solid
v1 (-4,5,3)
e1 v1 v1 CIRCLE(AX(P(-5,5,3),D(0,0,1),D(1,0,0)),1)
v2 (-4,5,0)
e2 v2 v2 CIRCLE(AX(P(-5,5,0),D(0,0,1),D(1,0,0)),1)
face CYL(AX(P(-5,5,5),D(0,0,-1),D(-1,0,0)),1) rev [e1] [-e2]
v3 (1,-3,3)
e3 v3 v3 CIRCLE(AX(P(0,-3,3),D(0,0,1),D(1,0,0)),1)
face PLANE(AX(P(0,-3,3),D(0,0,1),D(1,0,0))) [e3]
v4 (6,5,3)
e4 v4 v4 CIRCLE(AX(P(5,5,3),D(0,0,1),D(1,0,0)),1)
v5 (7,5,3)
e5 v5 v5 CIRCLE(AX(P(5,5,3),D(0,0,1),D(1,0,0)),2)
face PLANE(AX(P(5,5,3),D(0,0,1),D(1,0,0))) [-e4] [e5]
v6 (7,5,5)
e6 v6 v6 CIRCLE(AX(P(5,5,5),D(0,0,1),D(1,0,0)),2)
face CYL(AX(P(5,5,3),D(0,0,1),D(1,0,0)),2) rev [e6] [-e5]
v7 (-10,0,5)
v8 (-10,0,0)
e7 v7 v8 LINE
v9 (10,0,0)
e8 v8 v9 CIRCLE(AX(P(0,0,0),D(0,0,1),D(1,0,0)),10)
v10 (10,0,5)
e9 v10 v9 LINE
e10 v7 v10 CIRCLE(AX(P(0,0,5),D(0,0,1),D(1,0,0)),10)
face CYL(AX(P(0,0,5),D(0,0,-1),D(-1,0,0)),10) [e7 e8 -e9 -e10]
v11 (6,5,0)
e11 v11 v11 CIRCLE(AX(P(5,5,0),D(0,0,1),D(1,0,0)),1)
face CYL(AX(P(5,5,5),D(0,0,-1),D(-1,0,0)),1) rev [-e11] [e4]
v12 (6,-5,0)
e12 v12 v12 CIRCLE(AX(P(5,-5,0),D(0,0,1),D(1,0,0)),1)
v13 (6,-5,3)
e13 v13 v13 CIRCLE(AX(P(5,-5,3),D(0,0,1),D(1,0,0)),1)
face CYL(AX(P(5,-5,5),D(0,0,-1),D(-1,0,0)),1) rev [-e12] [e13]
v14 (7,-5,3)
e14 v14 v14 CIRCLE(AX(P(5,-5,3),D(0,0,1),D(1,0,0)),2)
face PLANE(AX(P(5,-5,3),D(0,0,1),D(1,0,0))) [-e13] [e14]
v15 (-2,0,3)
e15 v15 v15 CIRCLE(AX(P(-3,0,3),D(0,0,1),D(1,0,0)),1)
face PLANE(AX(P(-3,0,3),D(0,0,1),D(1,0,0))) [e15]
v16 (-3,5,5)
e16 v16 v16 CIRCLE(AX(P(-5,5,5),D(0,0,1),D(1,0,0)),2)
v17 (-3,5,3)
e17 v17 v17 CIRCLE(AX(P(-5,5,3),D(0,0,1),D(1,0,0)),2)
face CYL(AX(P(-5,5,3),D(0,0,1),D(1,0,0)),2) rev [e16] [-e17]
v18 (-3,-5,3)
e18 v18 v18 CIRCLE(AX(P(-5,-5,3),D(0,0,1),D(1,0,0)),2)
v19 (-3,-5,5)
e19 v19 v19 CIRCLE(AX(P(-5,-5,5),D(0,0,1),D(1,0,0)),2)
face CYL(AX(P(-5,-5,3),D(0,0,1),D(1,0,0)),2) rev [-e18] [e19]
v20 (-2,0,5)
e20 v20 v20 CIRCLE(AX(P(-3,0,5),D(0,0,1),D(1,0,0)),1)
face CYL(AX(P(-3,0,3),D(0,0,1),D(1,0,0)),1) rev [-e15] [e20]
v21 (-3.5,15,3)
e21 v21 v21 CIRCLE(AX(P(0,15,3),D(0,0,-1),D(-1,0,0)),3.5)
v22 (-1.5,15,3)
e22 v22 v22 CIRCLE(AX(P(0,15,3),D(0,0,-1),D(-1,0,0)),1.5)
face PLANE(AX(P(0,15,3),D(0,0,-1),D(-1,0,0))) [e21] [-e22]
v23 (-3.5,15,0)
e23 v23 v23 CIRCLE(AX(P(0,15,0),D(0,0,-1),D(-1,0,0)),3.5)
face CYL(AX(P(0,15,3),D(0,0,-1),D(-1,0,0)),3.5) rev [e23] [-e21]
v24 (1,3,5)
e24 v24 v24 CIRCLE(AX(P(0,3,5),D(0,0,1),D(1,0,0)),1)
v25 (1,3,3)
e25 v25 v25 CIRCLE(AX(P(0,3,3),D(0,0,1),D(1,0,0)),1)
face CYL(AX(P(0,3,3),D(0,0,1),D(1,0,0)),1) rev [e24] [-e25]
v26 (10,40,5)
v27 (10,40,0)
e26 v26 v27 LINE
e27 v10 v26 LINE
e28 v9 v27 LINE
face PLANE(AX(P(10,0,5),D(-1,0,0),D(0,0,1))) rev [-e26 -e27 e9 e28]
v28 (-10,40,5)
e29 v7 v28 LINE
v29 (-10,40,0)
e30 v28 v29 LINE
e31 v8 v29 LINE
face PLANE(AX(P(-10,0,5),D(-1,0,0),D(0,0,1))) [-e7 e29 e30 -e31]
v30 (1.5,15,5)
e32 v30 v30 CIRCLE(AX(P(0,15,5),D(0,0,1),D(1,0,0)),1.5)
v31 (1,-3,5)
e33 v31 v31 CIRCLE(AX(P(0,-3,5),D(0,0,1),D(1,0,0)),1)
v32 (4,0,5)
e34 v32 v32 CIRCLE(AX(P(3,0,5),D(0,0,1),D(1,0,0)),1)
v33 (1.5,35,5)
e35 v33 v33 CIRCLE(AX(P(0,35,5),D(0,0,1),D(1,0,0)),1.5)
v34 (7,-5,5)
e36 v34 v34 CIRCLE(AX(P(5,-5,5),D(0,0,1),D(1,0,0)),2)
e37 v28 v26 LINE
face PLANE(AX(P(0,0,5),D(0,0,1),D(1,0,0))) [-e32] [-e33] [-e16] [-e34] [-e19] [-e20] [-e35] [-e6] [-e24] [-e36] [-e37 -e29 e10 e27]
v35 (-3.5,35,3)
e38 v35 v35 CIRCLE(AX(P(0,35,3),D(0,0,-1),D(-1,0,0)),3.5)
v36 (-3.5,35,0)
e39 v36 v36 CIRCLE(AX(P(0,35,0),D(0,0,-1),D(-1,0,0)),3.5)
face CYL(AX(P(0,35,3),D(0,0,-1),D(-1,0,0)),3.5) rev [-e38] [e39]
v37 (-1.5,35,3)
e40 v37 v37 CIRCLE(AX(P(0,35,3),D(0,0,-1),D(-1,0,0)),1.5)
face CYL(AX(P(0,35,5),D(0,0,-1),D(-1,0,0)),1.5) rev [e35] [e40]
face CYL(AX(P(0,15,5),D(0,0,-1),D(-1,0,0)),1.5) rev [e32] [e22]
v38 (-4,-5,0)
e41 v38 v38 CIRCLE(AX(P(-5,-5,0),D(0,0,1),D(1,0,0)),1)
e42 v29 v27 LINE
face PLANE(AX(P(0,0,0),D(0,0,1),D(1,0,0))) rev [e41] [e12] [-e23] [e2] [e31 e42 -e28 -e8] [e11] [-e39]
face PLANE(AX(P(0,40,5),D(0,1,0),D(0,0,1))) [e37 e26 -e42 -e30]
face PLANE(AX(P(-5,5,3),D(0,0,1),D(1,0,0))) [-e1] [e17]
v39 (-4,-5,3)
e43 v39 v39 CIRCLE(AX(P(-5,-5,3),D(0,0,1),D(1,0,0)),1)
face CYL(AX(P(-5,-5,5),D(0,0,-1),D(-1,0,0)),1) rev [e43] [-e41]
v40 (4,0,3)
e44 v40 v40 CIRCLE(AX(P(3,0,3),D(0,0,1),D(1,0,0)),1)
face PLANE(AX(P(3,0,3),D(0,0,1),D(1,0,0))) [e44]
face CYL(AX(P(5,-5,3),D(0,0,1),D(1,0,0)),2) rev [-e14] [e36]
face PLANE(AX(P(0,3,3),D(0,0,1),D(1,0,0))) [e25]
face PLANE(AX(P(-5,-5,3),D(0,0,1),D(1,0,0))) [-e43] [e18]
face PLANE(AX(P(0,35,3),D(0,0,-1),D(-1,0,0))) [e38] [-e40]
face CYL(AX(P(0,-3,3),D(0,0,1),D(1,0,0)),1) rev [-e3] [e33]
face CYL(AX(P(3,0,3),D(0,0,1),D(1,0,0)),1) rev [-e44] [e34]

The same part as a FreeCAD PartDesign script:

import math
import FreeCAD as App
import Part
import Sketcher
from FreeCAD import Vector

doc = App.newDocument("Part")
body = doc.addObject("PartDesign::Body", "Body")

# Sketch on XY plane
sketch1 = body.newObject("Sketcher::SketchObject", "Sketch")
sketch1.AttachmentSupport = (doc.getObject("XY_Plane"), [""])
sketch1.MapMode = "FlatFace"
sketch1.addGeometry([
    Part.ArcOfCircle(Part.Circle(Vector(0, 0, 0), Vector(0, 0, 1), 10), math.radians(180), math.radians(360)),  # 0
    Part.LineSegment(Vector(10, 0, 0), Vector(10, 40, 0)),  # 1
    Part.LineSegment(Vector(10, 40, 0), Vector(-10, 40, 0)),  # 2
    Part.LineSegment(Vector(-10, 40, 0), Vector(-10, 0, 0)),  # 3
    Part.Circle(Vector(-5, -5, 0), Vector(0, 0, 1), 1),  # 4
    Part.Circle(Vector(5, -5, 0), Vector(0, 0, 1), 1),  # 5
    Part.Circle(Vector(-5, 5, 0), Vector(0, 0, 1), 1),  # 6
    Part.Circle(Vector(5, 5, 0), Vector(0, 0, 1), 1),  # 7
    Part.Circle(Vector(0, 35, 0), Vector(0, 0, 1), 1.5),  # 8
    Part.Circle(Vector(0, 15, 0), Vector(0, 0, 1), 1.5),  # 9
], False)
sketch1.addConstraint([
    Sketcher.Constraint("Tangent", 0, 2, 1, 1),
    Sketcher.Constraint("Coincident", 1, 2, 2, 1),
    Sketcher.Constraint("Coincident", 2, 2, 3, 1),
    Sketcher.Constraint("Tangent", 3, 2, 0, 1),
    Sketcher.Constraint("Vertical", 1),
    Sketcher.Constraint("Horizontal", 2),
    Sketcher.Constraint("Vertical", 3),
    Sketcher.Constraint("Coincident", 0, 3, -1, 1),
    Sketcher.Constraint("Equal", 4, 5),
    Sketcher.Constraint("Equal", 5, 6),
    Sketcher.Constraint("Equal", 6, 7),
    Sketcher.Constraint("Equal", 8, 9),
    Sketcher.Constraint("Symmetric", 5, 3, 6, 3, -1, 1),
    Sketcher.Constraint("Symmetric", 4, 3, 7, 3, -1, 1),
    Sketcher.Constraint("Symmetric", 4, 3, 5, 3, -2),
    Sketcher.Constraint("PointOnObject", 8, 3, -2),
    Sketcher.Constraint("PointOnObject", 9, 3, -2),
    Sketcher.Constraint("Diameter", 4, 2.0),
    Sketcher.Constraint("Diameter", 8, 3.0),
    Sketcher.Constraint("Radius", 0, 10.0),
    Sketcher.Constraint("DistanceY", 1, 1, 1, 2, 40.0),
    Sketcher.Constraint("DistanceX", 4, 3, -1, 1, 5.0),
    Sketcher.Constraint("DistanceY", 4, 3, -1, 1, 5.0),
    Sketcher.Constraint("DistanceY", -1, 1, 8, 3, 35.0),
    Sketcher.Constraint("DistanceY", -1, 1, 9, 3, 15.0),
])
pad1 = body.newObject("PartDesign::Pad", "Pad")
pad1.Profile = sketch1
pad1.Length = 5

# Sketch on XY plane
sketch2 = body.newObject("Sketcher::SketchObject", "Sketch001")
sketch2.AttachmentSupport = (doc.getObject("XY_Plane"), [""])
sketch2.MapMode = "FlatFace"
sketch2.AttachmentOffset = App.Placement(Vector(0, 0, 5), App.Rotation())
sketch2.addGeometry([
    Part.Circle(Vector(-5, 5, 0), Vector(0, 0, 1), 2),  # 0
    Part.Circle(Vector(5, 5, 0), Vector(0, 0, 1), 2),  # 1
    Part.Circle(Vector(5, -5, 0), Vector(0, 0, 1), 2),  # 2
    Part.Circle(Vector(-5, -5, 0), Vector(0, 0, 1), 2),  # 3
    Part.Circle(Vector(0, 3, 0), Vector(0, 0, 1), 1),  # 4
    Part.Circle(Vector(-3, 0, 0), Vector(0, 0, 1), 1),  # 5
    Part.Circle(Vector(3, 0, 0), Vector(0, 0, 1), 1),  # 6
    Part.Circle(Vector(0, -3, 0), Vector(0, 0, 1), 1),  # 7
], False)
sketch2.addConstraint([
    Sketcher.Constraint("Equal", 0, 1),
    Sketcher.Constraint("Equal", 1, 2),
    Sketcher.Constraint("Equal", 2, 3),
    Sketcher.Constraint("Equal", 4, 5),
    Sketcher.Constraint("Equal", 5, 6),
    Sketcher.Constraint("Equal", 6, 7),
    Sketcher.Constraint("Symmetric", 0, 3, 2, 3, -1, 1),
    Sketcher.Constraint("Symmetric", 1, 3, 3, 3, -1, 1),
    Sketcher.Constraint("Symmetric", 5, 3, 6, 3, -1, 1),
    Sketcher.Constraint("Symmetric", 4, 3, 7, 3, -1, 1),
    Sketcher.Constraint("Symmetric", 0, 3, 1, 3, -2),
    Sketcher.Constraint("PointOnObject", 4, 3, -2),
    Sketcher.Constraint("PointOnObject", 5, 3, -1),
    Sketcher.Constraint("Diameter", 0, 4.0),
    Sketcher.Constraint("Diameter", 4, 2.0),
    Sketcher.Constraint("DistanceX", 0, 3, -1, 1, 5.0),
    Sketcher.Constraint("DistanceY", -1, 1, 0, 3, 5.0),
    Sketcher.Constraint("DistanceY", -1, 1, 4, 3, 3.0),
    Sketcher.Constraint("DistanceX", 5, 3, -1, 1, 3.0),
])
pocket1 = body.newObject("PartDesign::Pocket", "Pocket")
pocket1.Profile = sketch2
pocket1.Length = 2

# Sketch on XY plane
sketch3 = body.newObject("Sketcher::SketchObject", "Sketch002")
sketch3.AttachmentSupport = (doc.getObject("XY_Plane"), [""])
sketch3.MapMode = "FlatFace"
sketch3.addGeometry([
    Part.Circle(Vector(0, 35, 0), Vector(0, 0, 1), 3.5),
    Part.Circle(Vector(0, 15, 0), Vector(0, 0, 1), 3.5),
], False)
sketch3.addConstraint([
    Sketcher.Constraint("Equal", 0, 1),
    Sketcher.Constraint("PointOnObject", 0, 3, -2),
    Sketcher.Constraint("PointOnObject", 1, 3, -2),
    Sketcher.Constraint("Diameter", 0, 7.0),
    Sketcher.Constraint("DistanceY", -1, 1, 0, 3, 35.0),
    Sketcher.Constraint("DistanceY", -1, 1, 1, 3, 15.0),
])
pocket2 = body.newObject("PartDesign::Pocket", "Pocket001")
pocket2.Profile = sketch3
pocket2.Length = 3
pocket2.Reversed = True

doc.recompute()
